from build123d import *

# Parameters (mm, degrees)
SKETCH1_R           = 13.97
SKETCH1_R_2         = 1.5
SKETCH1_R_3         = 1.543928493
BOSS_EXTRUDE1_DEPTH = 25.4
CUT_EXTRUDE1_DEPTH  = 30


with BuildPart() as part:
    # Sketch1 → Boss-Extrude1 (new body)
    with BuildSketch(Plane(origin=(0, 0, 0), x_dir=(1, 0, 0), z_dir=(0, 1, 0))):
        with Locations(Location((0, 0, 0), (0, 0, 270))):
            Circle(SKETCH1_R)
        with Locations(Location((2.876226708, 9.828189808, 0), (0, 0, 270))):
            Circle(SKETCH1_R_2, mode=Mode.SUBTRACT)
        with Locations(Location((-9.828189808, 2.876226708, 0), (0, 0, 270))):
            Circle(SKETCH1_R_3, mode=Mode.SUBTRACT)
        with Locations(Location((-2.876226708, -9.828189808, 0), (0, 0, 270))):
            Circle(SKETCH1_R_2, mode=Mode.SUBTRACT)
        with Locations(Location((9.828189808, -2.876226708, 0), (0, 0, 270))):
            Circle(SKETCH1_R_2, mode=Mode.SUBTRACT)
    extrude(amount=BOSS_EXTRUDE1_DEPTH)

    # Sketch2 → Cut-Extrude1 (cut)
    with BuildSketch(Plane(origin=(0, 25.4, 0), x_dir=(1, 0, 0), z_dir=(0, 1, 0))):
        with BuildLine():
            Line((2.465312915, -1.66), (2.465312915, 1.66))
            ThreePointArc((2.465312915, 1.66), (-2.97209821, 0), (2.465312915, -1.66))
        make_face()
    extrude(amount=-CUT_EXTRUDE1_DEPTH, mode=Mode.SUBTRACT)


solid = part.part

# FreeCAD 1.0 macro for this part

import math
import FreeCAD as App
import Part
import Sketcher

V = App.Vector
Q = App.Units.Quantity

doc = App.newDocument("Part")
body = doc.addObject("PartDesign::Body", "Body")

# Sketch on XZ plane
sketch1 = body.newObject("Sketcher::SketchObject", "Sketch")
sketch1.AttachmentSupport = (doc.getObject("XZ_Plane"), [""])
sketch1.MapMode = "FlatFace"
sketch1.addGeometry(Part.Circle(V(0, 0, 0), V(0, 0, 1), 14), False)
sketch1.addGeometry(Part.Circle(V(-9.8, -2.9, 0), V(0, 0, 1), 1.5), False)
sketch1.addGeometry(Part.Circle(V(-2.9, 9.8, 0), V(0, 0, 1), 1.5), False)
sketch1.addGeometry(Part.Circle(V(2.9, -9.8, 0), V(0, 0, 1), 1.5), False)
sketch1.addGeometry(Part.Circle(V(9.8, 2.9, 0), V(0, 0, 1), 1.5), False)
sketch1.addConstraint(Sketcher.Constraint("Coincident", 0, 3, -1, 1))
sketch1.addConstraint(Sketcher.Constraint("Equal", 2, 3))
sketch1.addConstraint(Sketcher.Constraint("Equal", 3, 4))
sketch1.addConstraint(Sketcher.Constraint("Symmetric", 2, 3, 3, 3, -1, 1))
sketch1.addConstraint(Sketcher.Constraint("Symmetric", 1, 3, 4, 3, -1, 1))
sketch1.addConstraint(Sketcher.Constraint("Diameter", 2, Q("3 mm")))
sketch1.addConstraint(Sketcher.Constraint("Diameter", 0, Q("27.94 mm")))
sketch1.addConstraint(Sketcher.Constraint("Diameter", 1, Q("3.087857 mm")))
sketch1.addConstraint(Sketcher.Constraint("DistanceX", 1, 3, -1, 1, Q("9.82819 mm")))
sketch1.addConstraint(Sketcher.Constraint("DistanceY", -1, 1, 2, 3, Q("9.82819 mm")))
sketch1.addConstraint(Sketcher.Constraint("DistanceY", 1, 3, -1, 1, Q("2.876227 mm")))
sketch1.addConstraint(Sketcher.Constraint("DistanceX", 2, 3, -1, 1, Q("2.876227 mm")))
pad1 = body.newObject("PartDesign::Pad", "Pad")
pad1.Profile = sketch1
pad1.Length = 25.4
pad1.Reversed = True

# Sketch on XZ plane
sketch2 = body.newObject("Sketcher::SketchObject", "Sketch001")
sketch2.AttachmentSupport = (doc.getObject("XZ_Plane"), [""])
sketch2.MapMode = "FlatFace"
sketch2.AttachmentOffset = App.Placement(V(0, 0, -25.4), App.Rotation())
sketch2.addGeometry(Part.LineSegment(V(2.5, 1.7, 0), V(2.5, -1.7, 0)), False)
sketch2.addGeometry(Part.ArcOfCircle(Part.Circle(V(0, 0, 0), V(0, 0, 1), 3), math.radians(34), math.radians(326)), False)
sketch2.addConstraint(Sketcher.Constraint("Coincident", 0, 1, 1, 1))
sketch2.addConstraint(Sketcher.Constraint("Coincident", 1, 2, 0, 2))
sketch2.addConstraint(Sketcher.Constraint("Vertical", 0))
sketch2.addConstraint(Sketcher.Constraint("Coincident", 1, 3, -1, 1))
sketch2.addConstraint(Sketcher.Constraint("DistanceY", 0, 2, 0, 1, Q("3.32 mm")))
sketch2.addConstraint(Sketcher.Constraint("Radius", 1, Q("2.972098 mm")))
pocket1 = body.newObject("PartDesign::Pocket", "Pocket")
pocket1.Profile = sketch2
pocket1.Length = 30
pocket1.Reversed = True

doc.recompute()
